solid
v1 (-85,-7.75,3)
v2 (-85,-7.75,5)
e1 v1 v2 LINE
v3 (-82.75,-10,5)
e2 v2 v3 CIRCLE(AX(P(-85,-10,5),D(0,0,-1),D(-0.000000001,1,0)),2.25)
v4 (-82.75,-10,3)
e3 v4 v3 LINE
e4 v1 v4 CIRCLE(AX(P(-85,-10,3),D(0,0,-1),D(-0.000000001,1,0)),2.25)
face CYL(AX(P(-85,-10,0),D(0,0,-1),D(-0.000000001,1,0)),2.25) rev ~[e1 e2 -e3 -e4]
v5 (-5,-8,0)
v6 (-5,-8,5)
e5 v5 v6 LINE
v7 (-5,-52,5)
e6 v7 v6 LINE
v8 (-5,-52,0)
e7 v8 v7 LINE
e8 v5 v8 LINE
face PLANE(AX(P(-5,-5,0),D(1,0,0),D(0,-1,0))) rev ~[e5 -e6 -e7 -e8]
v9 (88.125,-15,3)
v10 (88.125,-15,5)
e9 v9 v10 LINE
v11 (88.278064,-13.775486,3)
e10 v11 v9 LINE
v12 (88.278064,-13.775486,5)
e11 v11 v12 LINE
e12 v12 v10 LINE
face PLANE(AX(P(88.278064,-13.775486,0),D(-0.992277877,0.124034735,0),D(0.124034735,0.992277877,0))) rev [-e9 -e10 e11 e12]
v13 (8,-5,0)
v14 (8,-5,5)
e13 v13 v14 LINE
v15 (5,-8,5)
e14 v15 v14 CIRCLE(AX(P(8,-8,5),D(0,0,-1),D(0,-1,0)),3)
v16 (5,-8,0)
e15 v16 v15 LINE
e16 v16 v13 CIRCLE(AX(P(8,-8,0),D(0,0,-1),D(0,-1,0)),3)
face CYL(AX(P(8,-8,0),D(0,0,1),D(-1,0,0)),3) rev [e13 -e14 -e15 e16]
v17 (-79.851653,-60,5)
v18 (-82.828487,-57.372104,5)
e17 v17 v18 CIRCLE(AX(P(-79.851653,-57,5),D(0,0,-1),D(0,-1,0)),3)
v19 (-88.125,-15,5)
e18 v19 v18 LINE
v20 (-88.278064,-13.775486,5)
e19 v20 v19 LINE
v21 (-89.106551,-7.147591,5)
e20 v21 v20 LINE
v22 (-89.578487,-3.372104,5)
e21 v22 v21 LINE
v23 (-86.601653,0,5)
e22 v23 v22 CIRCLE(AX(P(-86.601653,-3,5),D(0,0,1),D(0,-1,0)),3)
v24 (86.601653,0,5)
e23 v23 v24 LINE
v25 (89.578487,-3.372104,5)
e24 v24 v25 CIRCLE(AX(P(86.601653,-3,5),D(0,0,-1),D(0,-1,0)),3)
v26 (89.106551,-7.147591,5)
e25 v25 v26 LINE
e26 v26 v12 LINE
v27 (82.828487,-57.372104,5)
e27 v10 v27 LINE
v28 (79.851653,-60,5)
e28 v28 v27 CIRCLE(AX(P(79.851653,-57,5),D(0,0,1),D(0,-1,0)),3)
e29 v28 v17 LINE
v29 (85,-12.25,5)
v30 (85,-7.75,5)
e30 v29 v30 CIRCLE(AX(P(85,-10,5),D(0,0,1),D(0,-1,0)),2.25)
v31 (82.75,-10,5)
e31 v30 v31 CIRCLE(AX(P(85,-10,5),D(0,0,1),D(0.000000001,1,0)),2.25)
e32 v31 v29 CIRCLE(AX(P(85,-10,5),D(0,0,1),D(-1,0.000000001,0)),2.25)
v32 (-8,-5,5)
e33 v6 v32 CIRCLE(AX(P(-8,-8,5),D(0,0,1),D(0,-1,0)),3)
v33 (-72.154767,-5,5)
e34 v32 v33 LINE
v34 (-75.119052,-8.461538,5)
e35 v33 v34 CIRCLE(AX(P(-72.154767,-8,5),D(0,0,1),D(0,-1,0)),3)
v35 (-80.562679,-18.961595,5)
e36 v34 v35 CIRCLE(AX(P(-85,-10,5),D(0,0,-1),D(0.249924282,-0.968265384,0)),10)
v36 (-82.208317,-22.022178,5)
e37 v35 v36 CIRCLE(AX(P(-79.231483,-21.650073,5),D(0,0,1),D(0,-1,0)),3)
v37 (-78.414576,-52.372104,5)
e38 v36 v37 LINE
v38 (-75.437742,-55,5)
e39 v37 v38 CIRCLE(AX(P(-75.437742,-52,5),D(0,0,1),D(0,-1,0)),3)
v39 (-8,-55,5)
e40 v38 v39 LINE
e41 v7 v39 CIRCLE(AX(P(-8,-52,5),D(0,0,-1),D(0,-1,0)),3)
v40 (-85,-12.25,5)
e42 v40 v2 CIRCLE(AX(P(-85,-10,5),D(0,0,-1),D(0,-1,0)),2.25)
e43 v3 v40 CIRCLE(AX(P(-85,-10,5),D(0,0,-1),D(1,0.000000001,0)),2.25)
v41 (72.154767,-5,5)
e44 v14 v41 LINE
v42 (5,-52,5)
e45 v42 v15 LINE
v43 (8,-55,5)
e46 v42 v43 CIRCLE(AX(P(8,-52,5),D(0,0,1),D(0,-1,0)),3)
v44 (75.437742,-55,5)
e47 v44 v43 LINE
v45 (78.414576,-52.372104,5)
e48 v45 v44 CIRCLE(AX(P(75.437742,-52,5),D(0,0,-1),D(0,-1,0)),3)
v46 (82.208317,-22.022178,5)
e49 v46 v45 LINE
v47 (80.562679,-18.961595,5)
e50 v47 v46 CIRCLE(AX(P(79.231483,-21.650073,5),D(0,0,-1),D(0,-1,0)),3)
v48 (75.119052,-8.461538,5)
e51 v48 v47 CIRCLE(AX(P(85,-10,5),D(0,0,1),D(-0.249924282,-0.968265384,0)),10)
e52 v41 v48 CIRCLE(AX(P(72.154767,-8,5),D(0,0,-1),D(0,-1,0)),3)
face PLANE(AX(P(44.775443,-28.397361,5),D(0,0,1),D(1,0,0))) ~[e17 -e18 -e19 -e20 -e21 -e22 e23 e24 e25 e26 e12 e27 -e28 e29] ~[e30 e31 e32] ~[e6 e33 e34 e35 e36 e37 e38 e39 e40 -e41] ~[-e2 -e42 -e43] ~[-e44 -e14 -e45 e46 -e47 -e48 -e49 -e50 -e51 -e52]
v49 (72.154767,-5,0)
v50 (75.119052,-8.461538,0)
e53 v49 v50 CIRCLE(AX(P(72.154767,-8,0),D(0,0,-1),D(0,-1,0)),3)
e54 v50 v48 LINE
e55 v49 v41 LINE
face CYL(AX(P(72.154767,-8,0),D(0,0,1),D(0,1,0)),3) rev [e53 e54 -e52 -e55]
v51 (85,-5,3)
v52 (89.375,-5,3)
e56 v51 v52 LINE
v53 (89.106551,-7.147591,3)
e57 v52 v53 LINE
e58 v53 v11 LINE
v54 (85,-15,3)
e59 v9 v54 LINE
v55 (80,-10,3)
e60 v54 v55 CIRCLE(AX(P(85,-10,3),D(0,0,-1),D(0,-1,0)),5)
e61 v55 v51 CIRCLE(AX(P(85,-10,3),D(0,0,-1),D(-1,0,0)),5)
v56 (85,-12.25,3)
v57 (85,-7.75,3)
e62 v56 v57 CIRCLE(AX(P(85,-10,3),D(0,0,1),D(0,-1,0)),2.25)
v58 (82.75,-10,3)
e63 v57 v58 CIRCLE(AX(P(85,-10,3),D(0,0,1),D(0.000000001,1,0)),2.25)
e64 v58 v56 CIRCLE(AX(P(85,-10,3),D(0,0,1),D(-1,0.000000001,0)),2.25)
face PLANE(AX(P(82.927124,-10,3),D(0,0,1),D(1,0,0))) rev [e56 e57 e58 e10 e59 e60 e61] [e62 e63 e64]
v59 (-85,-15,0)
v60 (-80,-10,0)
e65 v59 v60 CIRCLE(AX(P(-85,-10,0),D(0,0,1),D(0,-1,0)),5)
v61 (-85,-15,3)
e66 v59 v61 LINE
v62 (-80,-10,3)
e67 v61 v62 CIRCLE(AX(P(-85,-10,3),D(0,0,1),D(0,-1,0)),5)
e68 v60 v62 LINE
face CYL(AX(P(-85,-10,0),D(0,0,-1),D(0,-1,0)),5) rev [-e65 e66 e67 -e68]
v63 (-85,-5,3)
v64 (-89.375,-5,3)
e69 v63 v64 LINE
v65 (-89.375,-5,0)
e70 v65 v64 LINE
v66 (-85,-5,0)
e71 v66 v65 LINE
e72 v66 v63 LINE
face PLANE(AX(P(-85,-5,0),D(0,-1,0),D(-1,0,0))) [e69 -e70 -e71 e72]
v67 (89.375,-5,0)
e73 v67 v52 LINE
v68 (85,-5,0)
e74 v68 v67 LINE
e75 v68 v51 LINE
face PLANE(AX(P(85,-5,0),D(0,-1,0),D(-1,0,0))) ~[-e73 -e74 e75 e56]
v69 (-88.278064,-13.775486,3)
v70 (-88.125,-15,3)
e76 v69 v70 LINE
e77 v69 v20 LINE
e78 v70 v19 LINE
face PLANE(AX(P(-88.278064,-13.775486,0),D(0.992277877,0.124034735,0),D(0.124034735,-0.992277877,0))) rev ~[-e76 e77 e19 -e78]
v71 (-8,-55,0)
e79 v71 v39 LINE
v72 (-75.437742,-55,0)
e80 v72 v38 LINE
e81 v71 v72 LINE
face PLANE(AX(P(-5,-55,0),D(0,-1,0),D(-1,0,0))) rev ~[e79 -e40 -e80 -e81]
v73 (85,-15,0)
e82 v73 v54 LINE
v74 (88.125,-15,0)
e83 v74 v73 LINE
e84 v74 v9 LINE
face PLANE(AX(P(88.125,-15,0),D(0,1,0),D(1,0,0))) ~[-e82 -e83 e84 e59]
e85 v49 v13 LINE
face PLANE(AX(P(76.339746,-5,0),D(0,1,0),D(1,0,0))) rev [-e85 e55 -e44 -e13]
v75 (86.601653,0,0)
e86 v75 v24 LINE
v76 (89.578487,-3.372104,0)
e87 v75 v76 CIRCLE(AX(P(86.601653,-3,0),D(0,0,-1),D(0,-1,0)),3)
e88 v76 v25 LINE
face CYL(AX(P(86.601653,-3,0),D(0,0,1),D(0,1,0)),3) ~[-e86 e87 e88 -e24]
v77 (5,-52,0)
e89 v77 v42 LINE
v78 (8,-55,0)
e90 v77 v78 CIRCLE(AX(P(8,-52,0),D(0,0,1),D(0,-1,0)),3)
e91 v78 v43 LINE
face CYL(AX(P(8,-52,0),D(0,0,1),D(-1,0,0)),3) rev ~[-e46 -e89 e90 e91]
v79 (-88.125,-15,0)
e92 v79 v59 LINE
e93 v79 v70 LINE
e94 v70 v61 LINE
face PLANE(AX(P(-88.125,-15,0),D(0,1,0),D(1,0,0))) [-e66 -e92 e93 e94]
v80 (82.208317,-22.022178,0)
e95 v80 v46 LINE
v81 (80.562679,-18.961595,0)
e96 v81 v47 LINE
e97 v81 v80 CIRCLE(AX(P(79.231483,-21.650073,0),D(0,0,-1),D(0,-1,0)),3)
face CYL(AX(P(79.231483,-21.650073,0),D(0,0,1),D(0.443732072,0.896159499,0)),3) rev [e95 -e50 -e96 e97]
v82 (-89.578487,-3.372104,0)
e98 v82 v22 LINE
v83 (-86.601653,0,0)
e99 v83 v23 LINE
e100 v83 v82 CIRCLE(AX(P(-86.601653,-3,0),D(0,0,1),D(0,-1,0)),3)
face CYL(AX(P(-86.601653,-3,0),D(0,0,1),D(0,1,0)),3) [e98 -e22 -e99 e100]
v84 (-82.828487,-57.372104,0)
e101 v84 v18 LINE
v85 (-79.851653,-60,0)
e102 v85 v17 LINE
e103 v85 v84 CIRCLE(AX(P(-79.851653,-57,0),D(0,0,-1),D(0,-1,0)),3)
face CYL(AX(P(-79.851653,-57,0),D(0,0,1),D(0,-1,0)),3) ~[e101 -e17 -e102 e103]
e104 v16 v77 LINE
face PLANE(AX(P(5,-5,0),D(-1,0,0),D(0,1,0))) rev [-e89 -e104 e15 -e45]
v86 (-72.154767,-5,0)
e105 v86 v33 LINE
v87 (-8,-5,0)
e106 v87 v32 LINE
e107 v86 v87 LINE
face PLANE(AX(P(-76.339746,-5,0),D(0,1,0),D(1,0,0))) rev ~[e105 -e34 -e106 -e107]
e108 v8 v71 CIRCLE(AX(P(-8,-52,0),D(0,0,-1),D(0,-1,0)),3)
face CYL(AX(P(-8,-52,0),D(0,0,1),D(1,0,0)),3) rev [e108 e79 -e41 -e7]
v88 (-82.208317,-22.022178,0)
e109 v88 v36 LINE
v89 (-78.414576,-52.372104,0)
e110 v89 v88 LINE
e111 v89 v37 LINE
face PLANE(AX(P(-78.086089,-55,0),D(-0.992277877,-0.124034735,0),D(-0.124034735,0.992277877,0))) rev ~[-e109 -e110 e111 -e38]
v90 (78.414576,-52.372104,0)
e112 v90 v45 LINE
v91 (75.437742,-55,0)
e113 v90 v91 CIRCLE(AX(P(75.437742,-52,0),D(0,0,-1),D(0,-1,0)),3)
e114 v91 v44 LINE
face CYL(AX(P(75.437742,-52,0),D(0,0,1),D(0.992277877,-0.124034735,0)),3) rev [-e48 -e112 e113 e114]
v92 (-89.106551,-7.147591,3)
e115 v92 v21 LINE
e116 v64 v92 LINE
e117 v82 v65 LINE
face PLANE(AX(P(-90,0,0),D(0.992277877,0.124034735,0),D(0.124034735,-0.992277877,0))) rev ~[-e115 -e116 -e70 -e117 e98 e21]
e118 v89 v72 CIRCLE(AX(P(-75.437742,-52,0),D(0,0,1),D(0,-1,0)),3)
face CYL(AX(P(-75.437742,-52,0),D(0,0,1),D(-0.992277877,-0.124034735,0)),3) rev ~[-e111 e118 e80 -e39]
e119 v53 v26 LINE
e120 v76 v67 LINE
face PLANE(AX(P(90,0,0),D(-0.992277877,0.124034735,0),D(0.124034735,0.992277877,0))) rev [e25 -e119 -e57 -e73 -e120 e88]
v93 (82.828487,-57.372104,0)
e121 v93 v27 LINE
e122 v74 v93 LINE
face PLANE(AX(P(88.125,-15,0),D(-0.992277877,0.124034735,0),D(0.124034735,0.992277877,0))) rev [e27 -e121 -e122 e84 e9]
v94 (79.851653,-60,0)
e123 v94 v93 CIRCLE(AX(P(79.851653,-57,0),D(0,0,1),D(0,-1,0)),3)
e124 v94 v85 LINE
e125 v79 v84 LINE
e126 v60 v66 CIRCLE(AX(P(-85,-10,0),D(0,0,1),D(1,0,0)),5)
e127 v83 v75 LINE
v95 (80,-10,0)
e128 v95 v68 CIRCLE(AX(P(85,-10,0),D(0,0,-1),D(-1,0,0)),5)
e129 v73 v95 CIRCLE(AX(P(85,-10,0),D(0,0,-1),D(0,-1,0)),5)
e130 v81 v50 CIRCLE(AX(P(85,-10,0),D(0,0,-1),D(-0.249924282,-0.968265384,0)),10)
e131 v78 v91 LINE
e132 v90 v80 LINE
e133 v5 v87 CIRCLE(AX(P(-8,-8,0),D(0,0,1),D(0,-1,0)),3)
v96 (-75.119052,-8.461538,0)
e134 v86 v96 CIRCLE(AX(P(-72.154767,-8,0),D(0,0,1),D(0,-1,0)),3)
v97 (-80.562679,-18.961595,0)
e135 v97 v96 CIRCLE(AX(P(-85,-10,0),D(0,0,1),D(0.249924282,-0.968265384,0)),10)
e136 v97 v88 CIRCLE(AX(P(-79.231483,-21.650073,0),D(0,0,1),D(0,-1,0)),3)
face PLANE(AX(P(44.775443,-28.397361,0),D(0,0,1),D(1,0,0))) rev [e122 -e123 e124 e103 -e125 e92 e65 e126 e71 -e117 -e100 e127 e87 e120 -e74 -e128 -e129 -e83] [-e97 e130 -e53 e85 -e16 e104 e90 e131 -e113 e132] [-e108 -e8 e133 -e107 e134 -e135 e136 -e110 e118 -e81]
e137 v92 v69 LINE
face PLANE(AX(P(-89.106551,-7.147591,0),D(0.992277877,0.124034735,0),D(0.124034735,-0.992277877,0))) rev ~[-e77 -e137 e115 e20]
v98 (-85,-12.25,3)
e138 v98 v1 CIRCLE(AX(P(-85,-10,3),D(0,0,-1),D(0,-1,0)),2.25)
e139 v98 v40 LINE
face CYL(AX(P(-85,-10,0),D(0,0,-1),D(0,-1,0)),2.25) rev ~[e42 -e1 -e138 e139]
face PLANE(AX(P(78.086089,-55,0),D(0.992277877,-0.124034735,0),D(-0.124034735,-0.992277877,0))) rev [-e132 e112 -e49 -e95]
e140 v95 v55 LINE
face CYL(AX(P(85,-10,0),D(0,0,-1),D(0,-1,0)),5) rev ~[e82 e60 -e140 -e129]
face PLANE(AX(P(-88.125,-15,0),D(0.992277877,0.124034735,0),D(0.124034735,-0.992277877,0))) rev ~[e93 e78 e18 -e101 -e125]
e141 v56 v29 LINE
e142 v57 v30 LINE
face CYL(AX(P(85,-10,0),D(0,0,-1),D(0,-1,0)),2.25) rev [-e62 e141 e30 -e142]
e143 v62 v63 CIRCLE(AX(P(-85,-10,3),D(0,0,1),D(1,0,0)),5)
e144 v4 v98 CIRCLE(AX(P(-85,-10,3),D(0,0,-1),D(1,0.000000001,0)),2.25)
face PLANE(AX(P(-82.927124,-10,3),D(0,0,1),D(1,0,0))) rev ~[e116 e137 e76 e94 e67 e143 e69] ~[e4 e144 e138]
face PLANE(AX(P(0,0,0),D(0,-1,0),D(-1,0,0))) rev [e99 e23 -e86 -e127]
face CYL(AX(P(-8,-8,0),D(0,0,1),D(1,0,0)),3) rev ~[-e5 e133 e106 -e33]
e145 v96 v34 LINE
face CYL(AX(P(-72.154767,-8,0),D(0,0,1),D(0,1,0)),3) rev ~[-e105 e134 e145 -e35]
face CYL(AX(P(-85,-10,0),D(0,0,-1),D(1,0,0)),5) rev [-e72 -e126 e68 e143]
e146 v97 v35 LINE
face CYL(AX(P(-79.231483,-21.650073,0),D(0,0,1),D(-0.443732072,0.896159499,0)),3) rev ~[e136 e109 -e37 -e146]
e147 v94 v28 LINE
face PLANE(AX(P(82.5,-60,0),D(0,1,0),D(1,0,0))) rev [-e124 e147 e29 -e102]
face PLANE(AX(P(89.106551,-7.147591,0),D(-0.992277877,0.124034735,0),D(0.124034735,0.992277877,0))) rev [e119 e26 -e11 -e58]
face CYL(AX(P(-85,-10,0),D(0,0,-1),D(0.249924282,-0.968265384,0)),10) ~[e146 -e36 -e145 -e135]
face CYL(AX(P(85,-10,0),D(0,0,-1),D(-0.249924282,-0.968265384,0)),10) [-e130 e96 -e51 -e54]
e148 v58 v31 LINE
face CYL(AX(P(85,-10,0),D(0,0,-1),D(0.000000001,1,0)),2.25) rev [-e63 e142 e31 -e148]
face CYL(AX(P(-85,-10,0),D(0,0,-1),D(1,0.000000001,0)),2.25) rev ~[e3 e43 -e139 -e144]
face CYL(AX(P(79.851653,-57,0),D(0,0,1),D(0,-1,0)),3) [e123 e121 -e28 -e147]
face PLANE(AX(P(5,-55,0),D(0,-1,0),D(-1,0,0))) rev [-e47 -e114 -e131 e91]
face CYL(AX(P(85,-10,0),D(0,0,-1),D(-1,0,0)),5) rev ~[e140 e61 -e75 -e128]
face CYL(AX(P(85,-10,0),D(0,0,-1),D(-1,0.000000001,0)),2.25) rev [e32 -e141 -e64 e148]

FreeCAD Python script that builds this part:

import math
import FreeCAD as App
import Part
import Sketcher

V = App.Vector


def edges_at(feature, points):
    """Names of the edges that pass closest to the given points."""
    edges = feature.Shape.Edges
    near = lambda p: min(range(len(edges)), key=lambda i: edges[i].distToShape(Part.Vertex(*p))[0])
    return sorted({f"Edge{near(p) + 1}" for p in points})


def add_polygon(sketch, points):
    """Adds a closed chain of lines whose ends are joined by coincident constraints."""
    first, n = sketch.GeometryCount, len(points)
    for a, b in zip(points, points[1:] + points[:1]):
        sketch.addGeometry(Part.LineSegment(App.Vector(*a, 0), App.Vector(*b, 0)), False)
    for i in range(n):
        sketch.addConstraint(Sketcher.Constraint("Coincident", first + i, 2, first + (i + 1) % n, 1))

doc = App.newDocument("Part")
body = doc.addObject("PartDesign::Body", "Body")

# Sketch on XY plane
sketch1 = doc.addObject("Sketcher::SketchObject", "Sketch")
body.addObject(sketch1)
sketch1.AttachmentSupport = (doc.XY_Plane, [""])
sketch1.MapMode = "FlatFace"
add_polygon(sketch1, [(0, 0), (-90, 0), (-89.106551, -7.147591), (-88.278064, -13.775486), (-88.125, -15), (-82.5, -60), (0, -60)])  # lines 0-6
sketch1.addGeometry(Part.ArcOfCircle(Part.Circle(V(-85, -10, 0), V(0, 0, 1), 2.25), math.radians(0), math.radians(90)), False)  # 7
sketch1.addGeometry(Part.ArcOfCircle(Part.Circle(V(-85, -10, 0), V(0, 0, 1), 2.25), math.radians(-90), math.radians(0)), False)  # 8
sketch1.addGeometry(Part.ArcOfCircle(Part.Circle(V(-85, -10, 0), V(0, 0, 1), 2.25), math.radians(90), math.radians(270)), False)  # 9
sketch1.addConstraint([
    Sketcher.Constraint("Tangent", 7, 1, 8, 2),
    Sketcher.Constraint("Tangent", 8, 1, 9, 2),
    Sketcher.Constraint("Tangent", 9, 1, 7, 2),
    Sketcher.Constraint("Horizontal", 0),
    Sketcher.Constraint("Horizontal", 5),
    Sketcher.Constraint("Vertical", 6),
    Sketcher.Constraint("Coincident", 6, 2, -1, 1),
    Sketcher.Constraint("Parallel", 1, 2),
    Sketcher.Constraint("Parallel", 2, 3),
    Sketcher.Constraint("Parallel", 3, 4),
    Sketcher.Constraint("Horizontal", 9, 3, 7, 1),
    Sketcher.Constraint("Vertical", 9, 3, 8, 1),
    Sketcher.Constraint("Vertical", 8, 1, 9, 1),
    Sketcher.Constraint("DistanceX", 0, 2, 0, 1, 90.0),
    Sketcher.Constraint("DistanceY", 6, 1, 6, 2, 60.0),
    Sketcher.Constraint("Radius", 7, 2.25),
    Sketcher.Constraint("DistanceX", 5, 1, 5, 2, 82.5),
    Sketcher.Constraint("DistanceX", 7, 3, -1, 1, 85.0),
    Sketcher.Constraint("DistanceY", 7, 3, -1, 1, 10.0),
    Sketcher.Constraint("DistanceY", 3, 2, -1, 1, 15.0),
    Sketcher.Constraint("DistanceX", 1, 2, -1, 1, 89.106551),
    Sketcher.Constraint("Distance", 2, 6.679475),
])
pad1 = doc.addObject("PartDesign::Pad", "Pad")
body.addObject(pad1)
pad1.Profile = sketch1
pad1.Length = 5

# Sketch on XY plane
sketch2 = doc.addObject("Sketcher::SketchObject", "Sketch001")
body.addObject(sketch2)
sketch2.AttachmentSupport = (doc.XY_Plane, [""])
sketch2.MapMode = "FlatFace"
sketch2.addGeometry([
    Part.ArcOfCircle(Part.Circle(V(-85, -10, 0), V(0, 0, 1), 5), math.radians(0), math.radians(90)),  # 0
    Part.LineSegment(V(-85, -5, 0), V(-89.375, -5, 0)),  # 1
    Part.LineSegment(V(-89.375, -5, 0), V(-89.106551, -7.147591, 0)),  # 2
    Part.LineSegment(V(-89.106551, -7.147591, 0), V(-88.278064, -13.775486, 0)),  # 3
    Part.LineSegment(V(-88.278064, -13.775486, 0), V(-88.125, -15, 0)),  # 4
    Part.LineSegment(V(-88.125, -15, 0), V(-85, -15, 0)),  # 5
    Part.ArcOfCircle(Part.Circle(V(-85, -10, 0), V(0, 0, 1), 5), math.radians(-90), math.radians(0)),  # 6
    Part.ArcOfCircle(Part.Circle(V(-85, -10, 0), V(0, 0, 1), 2.25), math.radians(0), math.radians(90)),  # 7
    Part.ArcOfCircle(Part.Circle(V(-85, -10, 0), V(0, 0, 1), 2.25), math.radians(-90), math.radians(0)),  # 8
    Part.ArcOfCircle(Part.Circle(V(-85, -10, 0), V(0, 0, 1), 2.25), math.radians(90), math.radians(270)),  # 9
], False)
sketch2.addConstraint([
    Sketcher.Constraint("Tangent", 0, 2, 1, 1),
    Sketcher.Constraint("Coincident", 1, 2, 2, 1),
    Sketcher.Constraint("Coincident", 2, 2, 3, 1),
    Sketcher.Constraint("Coincident", 3, 2, 4, 1),
    Sketcher.Constraint("Coincident", 4, 2, 5, 1),
    Sketcher.Constraint("Tangent", 5, 2, 6, 1),
    Sketcher.Constraint("Tangent", 6, 2, 0, 1),
    Sketcher.Constraint("Tangent", 7, 1, 8, 2),
    Sketcher.Constraint("Tangent", 8, 1, 9, 2),
    Sketcher.Constraint("Tangent", 9, 1, 7, 2),
    Sketcher.Constraint("Horizontal", 1),
    Sketcher.Constraint("Horizontal", 5),
    Sketcher.Constraint("Coincident", 7, 3, 0, 3),
    Sketcher.Constraint("Equal", 0, 6),
    Sketcher.Constraint("Parallel", 2, 3),
    Sketcher.Constraint("Parallel", 3, 4),
    Sketcher.Constraint("Horizontal", 9, 3, 6, 2),
    Sketcher.Constraint("Horizontal", 6, 2, 7, 1),
    Sketcher.Constraint("Vertical", 5, 2, 8, 1),
    Sketcher.Constraint("Vertical", 8, 1, 9, 1),
    Sketcher.Constraint("Radius", 0, 5.0),
    Sketcher.Constraint("Radius", 7, 2.25),
    Sketcher.Constraint("DistanceX", 0, 3, -1, 1, 85.0),
    Sketcher.Constraint("DistanceY", 0, 3, -1, 1, 10.0),
    Sketcher.Constraint("DistanceX", 1, 2, 1, 1, 4.375),
    Sketcher.Constraint("DistanceX", 5, 1, 5, 2, 3.125),
    Sketcher.Constraint("DistanceX", 2, 2, -1, 1, 89.106551),
    Sketcher.Constraint("Distance", 3, 6.679475),
])
pocket1 = doc.addObject("PartDesign::Pocket", "Pocket")
body.addObject(pocket1)
pocket1.Profile = sketch2
pocket1.Length = 3
pocket1.Reversed = True
doc.recompute()

fillet = doc.addObject("PartDesign::Fillet", "Fillet")
body.addObject(fillet)
fillet.Base = (pocket1, edges_at(pocket1, [(-82.5, -60, 2.5), (-90, 0, 2.5)]))
fillet.Radius = 3

# Sketch on XY plane
sketch3 = doc.addObject("Sketcher::SketchObject", "Sketch002")
body.addObject(sketch3)
sketch3.AttachmentSupport = (doc.XY_Plane, [""])
sketch3.MapMode = "FlatFace"
sketch3.addGeometry([
    Part.LineSegment(V(-5, -55, 0), V(-78.086089, -55, 0)),  # 0
    Part.LineSegment(V(-78.086089, -55, 0), V(-82.500757, -19.682654, 0)),  # 1
    Part.ArcOfCircle(Part.Circle(V(-85, -10, 0), V(0, 0, 1), 10), math.radians(-75.526968), math.radians(30)),  # 2
    Part.LineSegment(V(-76.339746, -5, 0), V(-5, -5, 0)),  # 3
    Part.LineSegment(V(-5, -5, 0), V(-5, -55, 0)),  # 4
], False)
sketch3.addConstraint([
    Sketcher.Constraint("Coincident", 0, 2, 1, 1),
    Sketcher.Constraint("Coincident", 1, 2, 2, 1),
    Sketcher.Constraint("Coincident", 2, 2, 3, 1),
    Sketcher.Constraint("Coincident", 3, 2, 4, 1),
    Sketcher.Constraint("Coincident", 4, 2, 0, 1),
    Sketcher.Constraint("Horizontal", 0),
    Sketcher.Constraint("Horizontal", 3),
    Sketcher.Constraint("Vertical", 4),
    Sketcher.Constraint("Radius", 2, 10.0),
    Sketcher.Constraint("DistanceY", 4, 2, 4, 1, 50.0),
    Sketcher.Constraint("DistanceX", 2, 3, -1, 1, 85.0),
    Sketcher.Constraint("DistanceY", 2, 3, -1, 1, 10.0),
    Sketcher.Constraint("DistanceY", 0, 2, -1, 1, 55.0),
    Sketcher.Constraint("DistanceX", 3, 2, -1, 1, 5.0),
    Sketcher.Constraint("DistanceX", 0, 2, 0, 1, 73.086089),
    Sketcher.Constraint("DistanceX", 1, 2, 0, 2, 4.414668),
])
pocket2 = doc.addObject("PartDesign::Pocket", "Pocket001")
body.addObject(pocket2)
pocket2.Profile = sketch3
pocket2.Type = "ThroughAll"
pocket2.Reversed = True
doc.recompute()

fillet2 = doc.addObject("PartDesign::Fillet", "Fillet001")
body.addObject(fillet2)
fillet2.Base = (pocket2, edges_at(pocket2, [
    (-5, -5, 2.5),
    (-76.34, -5, 2.5),
    (-82.501, -19.683, 2.5),
    (-78.086, -55, 2.5),
    (-5, -55, 2.5),
]))
fillet2.Radius = 3
body2 = doc.addObject("PartDesign::Body", "Body001")
doc.recompute()

body2.BaseFeature = body
doc.recompute()

mirroring = doc.addObject("Part::Mirroring", "Mirroring")
mirroring.Source = body
mirroring.Base = V(0, 0, 0)
mirroring.Normal = V(1, 0, 0)
body3 = doc.addObject("PartDesign::Body", "Body002")
body3.BaseFeature = mirroring
boolean = doc.addObject("PartDesign::Boolean", "Boolean")
body2.addObject(boolean)
boolean.Type = "Fuse"
boolean.addObjects([body3])
doc.recompute()
mirroring.Visibility = False

doc.recompute()
